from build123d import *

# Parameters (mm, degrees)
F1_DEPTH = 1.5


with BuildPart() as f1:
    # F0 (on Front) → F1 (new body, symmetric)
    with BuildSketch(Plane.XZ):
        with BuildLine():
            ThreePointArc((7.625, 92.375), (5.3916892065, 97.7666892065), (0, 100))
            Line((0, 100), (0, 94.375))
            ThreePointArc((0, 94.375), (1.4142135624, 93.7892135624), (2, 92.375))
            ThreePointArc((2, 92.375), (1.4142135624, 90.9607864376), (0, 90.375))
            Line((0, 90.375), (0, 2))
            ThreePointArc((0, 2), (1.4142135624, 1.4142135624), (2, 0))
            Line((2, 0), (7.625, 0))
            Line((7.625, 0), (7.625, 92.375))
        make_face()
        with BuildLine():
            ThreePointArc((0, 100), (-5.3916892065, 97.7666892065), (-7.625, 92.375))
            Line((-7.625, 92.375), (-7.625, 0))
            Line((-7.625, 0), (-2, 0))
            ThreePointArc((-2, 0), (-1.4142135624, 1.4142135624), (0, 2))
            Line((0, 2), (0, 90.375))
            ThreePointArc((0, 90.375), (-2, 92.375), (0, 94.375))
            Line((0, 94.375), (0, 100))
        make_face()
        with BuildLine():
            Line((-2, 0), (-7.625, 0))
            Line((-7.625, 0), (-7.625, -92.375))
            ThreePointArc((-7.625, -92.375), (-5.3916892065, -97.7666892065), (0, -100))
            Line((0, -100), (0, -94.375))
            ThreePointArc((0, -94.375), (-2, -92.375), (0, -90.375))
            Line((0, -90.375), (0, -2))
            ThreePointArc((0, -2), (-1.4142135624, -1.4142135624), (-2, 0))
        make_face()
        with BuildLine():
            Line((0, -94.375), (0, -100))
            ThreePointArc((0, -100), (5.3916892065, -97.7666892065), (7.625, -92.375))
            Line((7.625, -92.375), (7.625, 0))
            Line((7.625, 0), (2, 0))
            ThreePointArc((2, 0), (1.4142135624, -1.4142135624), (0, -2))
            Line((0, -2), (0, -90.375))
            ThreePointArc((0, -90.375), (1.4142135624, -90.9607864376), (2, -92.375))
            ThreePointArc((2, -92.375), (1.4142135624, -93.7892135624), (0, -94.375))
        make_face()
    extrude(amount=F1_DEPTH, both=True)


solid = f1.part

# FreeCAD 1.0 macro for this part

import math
import FreeCAD as App
import Part
import Sketcher
from FreeCAD import Vector
Q = App.Units.Quantity

doc = App.newDocument("Part")
body = doc.addObject("PartDesign::Body", "Body")

# Sketch on XZ plane
sketch1 = body.newObject("Sketcher::SketchObject", "Sketch")
sketch1.AttachmentSupport = (doc.getObject("XZ_Plane"), [""])
sketch1.MapMode = "FlatFace"
sketch1.addGeometry([
    Part.ArcOfCircle(Part.Circle(Vector(0, 92.4, 0), Vector(0, 0, 1), 7.6), math.radians(0), math.radians(90)),  # 0
    Part.ArcOfCircle(Part.Circle(Vector(0, 92.4, 0), Vector(0, 0, 1), 7.6), math.radians(90), math.radians(180)),  # 1
    Part.LineSegment(Vector(-7.6, 92.4, 0), Vector(-7.6, -92.4, 0)),  # 2
    Part.ArcOfCircle(Part.Circle(Vector(0, -92.4, 0), Vector(0, 0, 1), 7.6), math.radians(180), math.radians(270)),  # 3
    Part.ArcOfCircle(Part.Circle(Vector(0, -92.4, 0), Vector(0, 0, 1), 7.6), math.radians(-90), math.radians(0)),  # 4
    Part.LineSegment(Vector(7.6, -92.4, 0), Vector(7.6, 92.4, 0)),  # 5
    Part.ArcOfCircle(Part.Circle(Vector(0, -92.4, 0), Vector(0, 0, 1), 2), math.radians(90), math.radians(270)),  # 6
    Part.ArcOfCircle(Part.Circle(Vector(0, -92.4, 0), Vector(0, 0, 1), 2), math.radians(0), math.radians(90)),  # 7
    Part.ArcOfCircle(Part.Circle(Vector(0, -92.4, 0), Vector(0, 0, 1), 2), math.radians(-90), math.radians(0)),  # 8
    Part.ArcOfCircle(Part.Circle(Vector(0, 0, 0), Vector(0, 0, 1), 2), math.radians(180), math.radians(270)),  # 9
    Part.ArcOfCircle(Part.Circle(Vector(0, 0, 0), Vector(0, 0, 1), 2), math.radians(90), math.radians(180)),  # 10
    Part.ArcOfCircle(Part.Circle(Vector(0, 0, 0), Vector(0, 0, 1), 2), math.radians(0), math.radians(90)),  # 11
    Part.ArcOfCircle(Part.Circle(Vector(0, 0, 0), Vector(0, 0, 1), 2), math.radians(-90), math.radians(0)),  # 12
    Part.ArcOfCircle(Part.Circle(Vector(0, 92.4, 0), Vector(0, 0, 1), 2), math.radians(0), math.radians(90)),  # 13
    Part.ArcOfCircle(Part.Circle(Vector(0, 92.4, 0), Vector(0, 0, 1), 2), math.radians(-90), math.radians(0)),  # 14
    Part.ArcOfCircle(Part.Circle(Vector(0, 92.4, 0), Vector(0, 0, 1), 2), math.radians(90), math.radians(270)),  # 15
], False)
sketch1.addConstraint([
    Sketcher.Constraint("Tangent", 0, 2, 1, 1),
    Sketcher.Constraint("Tangent", 1, 2, 2, 1),
    Sketcher.Constraint("Tangent", 2, 2, 3, 1),
    Sketcher.Constraint("Tangent", 3, 2, 4, 1),
    Sketcher.Constraint("Tangent", 4, 2, 5, 1),
    Sketcher.Constraint("Tangent", 5, 2, 0, 1),
    Sketcher.Constraint("Tangent", 6, 1, 7, 2),
    Sketcher.Constraint("Tangent", 7, 1, 8, 2),
    Sketcher.Constraint("Tangent", 8, 1, 6, 2),
    Sketcher.Constraint("Tangent", 9, 1, 10, 2),
    Sketcher.Constraint("Tangent", 10, 1, 11, 2),
    Sketcher.Constraint("Tangent", 11, 1, 12, 2),
    Sketcher.Constraint("Tangent", 12, 1, 9, 2),
    Sketcher.Constraint("Tangent", 13, 1, 14, 2),
    Sketcher.Constraint("Tangent", 14, 1, 15, 2),
    Sketcher.Constraint("Tangent", 15, 1, 13, 2),
    Sketcher.Constraint("Vertical", 2),
    Sketcher.Constraint("Vertical", 5),
    Sketcher.Constraint("Coincident", 9, 3, -1, 1),
    Sketcher.Constraint("Coincident", 6, 3, 3, 3),
    Sketcher.Constraint("Coincident", 13, 3, 0, 3),
    Sketcher.Constraint("Equal", 0, 1),
    Sketcher.Constraint("Equal", 1, 3),
    Sketcher.Constraint("Equal", 8, 9),
    Sketcher.Constraint("Equal", 9, 10),
    Sketcher.Constraint("Equal", 12, 13),
    Sketcher.Constraint("Symmetric", 0, 3, 3, 3, -1, 1),
    Sketcher.Constraint("PointOnObject", 0, 2, -2),
    Sketcher.Constraint("PointOnObject", 3, 2, -2),
    Sketcher.Constraint("PointOnObject", 6, 1, -2),
    Sketcher.Constraint("PointOnObject", 8, 1, -2),
    Sketcher.Constraint("PointOnObject", 9, 1, -1),
    Sketcher.Constraint("PointOnObject", 10, 1, -2),
    Sketcher.Constraint("PointOnObject", 11, 1, -1),
    Sketcher.Constraint("PointOnObject", 12, 1, -2),
    Sketcher.Constraint("PointOnObject", 14, 1, -2),
    Sketcher.Constraint("PointOnObject", 15, 1, -2),
    Sketcher.Constraint("Horizontal", 4, 2, 7, 1),
    Sketcher.Constraint("Horizontal", 5, 2, 13, 1),
    Sketcher.Constraint("Radius", 6, Q("2 mm")),
    Sketcher.Constraint("DistanceY", -1, 1, 0, 2, Q("100 mm")),
    Sketcher.Constraint("Radius", 0, Q("7.625 mm")),
])
pad1 = body.newObject("PartDesign::Pad", "Pad")
pad1.Profile = sketch1
pad1.Length = 3
pad1.Midplane = True

doc.recompute()
